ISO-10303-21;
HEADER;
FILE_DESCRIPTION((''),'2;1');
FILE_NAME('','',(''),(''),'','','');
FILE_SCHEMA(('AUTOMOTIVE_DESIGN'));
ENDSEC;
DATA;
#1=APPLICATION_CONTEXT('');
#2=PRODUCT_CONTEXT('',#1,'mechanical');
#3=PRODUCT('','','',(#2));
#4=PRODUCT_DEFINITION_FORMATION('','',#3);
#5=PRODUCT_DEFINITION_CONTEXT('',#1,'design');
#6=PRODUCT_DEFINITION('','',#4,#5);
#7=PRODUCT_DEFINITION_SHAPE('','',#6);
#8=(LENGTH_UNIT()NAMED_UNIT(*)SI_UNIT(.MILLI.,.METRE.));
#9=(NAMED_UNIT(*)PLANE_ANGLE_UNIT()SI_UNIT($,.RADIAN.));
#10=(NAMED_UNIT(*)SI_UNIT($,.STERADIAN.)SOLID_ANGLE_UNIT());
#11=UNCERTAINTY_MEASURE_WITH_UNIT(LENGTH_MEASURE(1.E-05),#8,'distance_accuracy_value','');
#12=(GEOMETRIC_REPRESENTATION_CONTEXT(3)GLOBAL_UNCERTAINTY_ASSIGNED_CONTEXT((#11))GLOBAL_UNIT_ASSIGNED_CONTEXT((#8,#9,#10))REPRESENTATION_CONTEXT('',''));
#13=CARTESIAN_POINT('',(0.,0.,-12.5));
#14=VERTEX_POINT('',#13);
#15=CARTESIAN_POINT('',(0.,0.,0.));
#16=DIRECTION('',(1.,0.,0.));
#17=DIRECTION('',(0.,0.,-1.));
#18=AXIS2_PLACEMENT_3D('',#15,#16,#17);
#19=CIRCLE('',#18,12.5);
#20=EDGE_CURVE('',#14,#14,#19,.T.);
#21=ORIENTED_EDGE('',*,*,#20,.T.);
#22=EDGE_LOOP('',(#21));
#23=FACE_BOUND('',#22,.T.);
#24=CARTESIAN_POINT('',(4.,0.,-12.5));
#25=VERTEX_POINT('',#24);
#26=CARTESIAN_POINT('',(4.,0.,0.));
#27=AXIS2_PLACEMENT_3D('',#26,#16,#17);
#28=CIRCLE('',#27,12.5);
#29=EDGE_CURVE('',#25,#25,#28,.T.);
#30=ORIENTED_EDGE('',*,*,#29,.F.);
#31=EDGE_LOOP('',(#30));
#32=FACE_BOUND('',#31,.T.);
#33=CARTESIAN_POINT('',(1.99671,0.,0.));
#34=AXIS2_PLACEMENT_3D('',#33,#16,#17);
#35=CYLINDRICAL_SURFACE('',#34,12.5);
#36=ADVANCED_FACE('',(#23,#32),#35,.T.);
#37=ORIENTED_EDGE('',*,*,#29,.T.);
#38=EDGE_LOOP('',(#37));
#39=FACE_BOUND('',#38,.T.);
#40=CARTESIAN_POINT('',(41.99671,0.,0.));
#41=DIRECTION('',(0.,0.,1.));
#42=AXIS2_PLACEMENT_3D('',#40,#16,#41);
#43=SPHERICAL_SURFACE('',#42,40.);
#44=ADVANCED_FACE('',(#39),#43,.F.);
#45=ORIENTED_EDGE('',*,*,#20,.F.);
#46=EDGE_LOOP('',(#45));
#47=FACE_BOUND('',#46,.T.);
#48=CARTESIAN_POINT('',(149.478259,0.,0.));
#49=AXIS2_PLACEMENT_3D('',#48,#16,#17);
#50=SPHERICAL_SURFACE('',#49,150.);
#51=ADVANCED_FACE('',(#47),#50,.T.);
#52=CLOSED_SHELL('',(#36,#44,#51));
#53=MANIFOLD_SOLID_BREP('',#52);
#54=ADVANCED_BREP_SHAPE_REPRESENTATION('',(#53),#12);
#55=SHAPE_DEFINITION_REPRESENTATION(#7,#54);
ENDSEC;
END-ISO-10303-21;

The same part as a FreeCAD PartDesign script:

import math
import FreeCAD as App
import Part
import Sketcher
from FreeCAD import Vector
Q = App.Units.Quantity

doc = App.newDocument("Part")
params = doc.addObject("Spreadsheet::Sheet", "Params")
for row, (alias, value) in enumerate([
    ("sketch1_radius", "40 mm"),
    ("sketch1_radius2", "150 mm"),
    ("sketch1_width", "4 mm"),
    ("revolution_angle", "360 deg"),
], start=1):
    params.set(f"A{row}", alias)
    params.set(f"B{row}", "=" + value)
    params.setAlias(f"B{row}", alias)

body = doc.addObject("PartDesign::Body", "Body")

# Sketch on XZ plane
sketch1 = doc.addObject("Sketcher::SketchObject", "Sketch")
body.addObject(sketch1)
sketch1.AttachmentSupport = (doc.XZ_Plane, [""])
sketch1.MapMode = "FlatFace"
sketch1.addGeometry([
    Part.LineSegment(Vector(0, 12.5, 0), Vector(4, 12.5, 0)),
    Part.ArcOfCircle(Part.Circle(Vector(42, 0, 0), Vector(0, 0, 1), 40), math.radians(161.79), math.radians(180)),
    Part.LineSegment(Vector(2, 0, 0), Vector(-0.5, 0, 0)),
    Part.ArcOfCircle(Part.Circle(Vector(149.5, 0, 0), Vector(0, 0, 1), 150), math.radians(175.22), math.radians(180)),
], False)
sketch1.addConstraint([
    Sketcher.Constraint("Coincident", 0, 2, 1, 1),
    Sketcher.Constraint("Coincident", 1, 2, 2, 1),
    Sketcher.Constraint("Coincident", 2, 2, 3, 2),
    Sketcher.Constraint("Coincident", 3, 1, 0, 1),
    Sketcher.Constraint("Horizontal", 0),
    Sketcher.Constraint("Horizontal", 2),
    Sketcher.Constraint("PointOnObject", 1, 3, -1),
    Sketcher.Constraint("PointOnObject", 3, 3, -1),
    Sketcher.Constraint("PointOnObject", 1, 2, -1),
    Sketcher.Constraint("PointOnObject", 3, 1, -2),
    Sketcher.Constraint("Radius", 1, Q("40 mm")),
    Sketcher.Constraint("Radius", 3, Q("150 mm")),
    Sketcher.Constraint("DistanceX", 0, 1, 0, 2, Q("4 mm")),
    Sketcher.Constraint("DistanceY", -1, 1, 0, 2, Q("12.5 mm")),
])
sketch1.setExpression("Constraints[10]", "Params.sketch1_radius")
sketch1.setExpression("Constraints[11]", "Params.sketch1_radius2")
sketch1.setExpression("Constraints[12]", "Params.sketch1_width")
revolution = doc.addObject("PartDesign::Revolution", "Revolution")
body.addObject(revolution)
revolution.Profile = sketch1
revolution.ReferenceAxis = (sketch1, ["H_Axis"])
revolution.setExpression("Angle", "Params.revolution_angle")

doc.recompute()
